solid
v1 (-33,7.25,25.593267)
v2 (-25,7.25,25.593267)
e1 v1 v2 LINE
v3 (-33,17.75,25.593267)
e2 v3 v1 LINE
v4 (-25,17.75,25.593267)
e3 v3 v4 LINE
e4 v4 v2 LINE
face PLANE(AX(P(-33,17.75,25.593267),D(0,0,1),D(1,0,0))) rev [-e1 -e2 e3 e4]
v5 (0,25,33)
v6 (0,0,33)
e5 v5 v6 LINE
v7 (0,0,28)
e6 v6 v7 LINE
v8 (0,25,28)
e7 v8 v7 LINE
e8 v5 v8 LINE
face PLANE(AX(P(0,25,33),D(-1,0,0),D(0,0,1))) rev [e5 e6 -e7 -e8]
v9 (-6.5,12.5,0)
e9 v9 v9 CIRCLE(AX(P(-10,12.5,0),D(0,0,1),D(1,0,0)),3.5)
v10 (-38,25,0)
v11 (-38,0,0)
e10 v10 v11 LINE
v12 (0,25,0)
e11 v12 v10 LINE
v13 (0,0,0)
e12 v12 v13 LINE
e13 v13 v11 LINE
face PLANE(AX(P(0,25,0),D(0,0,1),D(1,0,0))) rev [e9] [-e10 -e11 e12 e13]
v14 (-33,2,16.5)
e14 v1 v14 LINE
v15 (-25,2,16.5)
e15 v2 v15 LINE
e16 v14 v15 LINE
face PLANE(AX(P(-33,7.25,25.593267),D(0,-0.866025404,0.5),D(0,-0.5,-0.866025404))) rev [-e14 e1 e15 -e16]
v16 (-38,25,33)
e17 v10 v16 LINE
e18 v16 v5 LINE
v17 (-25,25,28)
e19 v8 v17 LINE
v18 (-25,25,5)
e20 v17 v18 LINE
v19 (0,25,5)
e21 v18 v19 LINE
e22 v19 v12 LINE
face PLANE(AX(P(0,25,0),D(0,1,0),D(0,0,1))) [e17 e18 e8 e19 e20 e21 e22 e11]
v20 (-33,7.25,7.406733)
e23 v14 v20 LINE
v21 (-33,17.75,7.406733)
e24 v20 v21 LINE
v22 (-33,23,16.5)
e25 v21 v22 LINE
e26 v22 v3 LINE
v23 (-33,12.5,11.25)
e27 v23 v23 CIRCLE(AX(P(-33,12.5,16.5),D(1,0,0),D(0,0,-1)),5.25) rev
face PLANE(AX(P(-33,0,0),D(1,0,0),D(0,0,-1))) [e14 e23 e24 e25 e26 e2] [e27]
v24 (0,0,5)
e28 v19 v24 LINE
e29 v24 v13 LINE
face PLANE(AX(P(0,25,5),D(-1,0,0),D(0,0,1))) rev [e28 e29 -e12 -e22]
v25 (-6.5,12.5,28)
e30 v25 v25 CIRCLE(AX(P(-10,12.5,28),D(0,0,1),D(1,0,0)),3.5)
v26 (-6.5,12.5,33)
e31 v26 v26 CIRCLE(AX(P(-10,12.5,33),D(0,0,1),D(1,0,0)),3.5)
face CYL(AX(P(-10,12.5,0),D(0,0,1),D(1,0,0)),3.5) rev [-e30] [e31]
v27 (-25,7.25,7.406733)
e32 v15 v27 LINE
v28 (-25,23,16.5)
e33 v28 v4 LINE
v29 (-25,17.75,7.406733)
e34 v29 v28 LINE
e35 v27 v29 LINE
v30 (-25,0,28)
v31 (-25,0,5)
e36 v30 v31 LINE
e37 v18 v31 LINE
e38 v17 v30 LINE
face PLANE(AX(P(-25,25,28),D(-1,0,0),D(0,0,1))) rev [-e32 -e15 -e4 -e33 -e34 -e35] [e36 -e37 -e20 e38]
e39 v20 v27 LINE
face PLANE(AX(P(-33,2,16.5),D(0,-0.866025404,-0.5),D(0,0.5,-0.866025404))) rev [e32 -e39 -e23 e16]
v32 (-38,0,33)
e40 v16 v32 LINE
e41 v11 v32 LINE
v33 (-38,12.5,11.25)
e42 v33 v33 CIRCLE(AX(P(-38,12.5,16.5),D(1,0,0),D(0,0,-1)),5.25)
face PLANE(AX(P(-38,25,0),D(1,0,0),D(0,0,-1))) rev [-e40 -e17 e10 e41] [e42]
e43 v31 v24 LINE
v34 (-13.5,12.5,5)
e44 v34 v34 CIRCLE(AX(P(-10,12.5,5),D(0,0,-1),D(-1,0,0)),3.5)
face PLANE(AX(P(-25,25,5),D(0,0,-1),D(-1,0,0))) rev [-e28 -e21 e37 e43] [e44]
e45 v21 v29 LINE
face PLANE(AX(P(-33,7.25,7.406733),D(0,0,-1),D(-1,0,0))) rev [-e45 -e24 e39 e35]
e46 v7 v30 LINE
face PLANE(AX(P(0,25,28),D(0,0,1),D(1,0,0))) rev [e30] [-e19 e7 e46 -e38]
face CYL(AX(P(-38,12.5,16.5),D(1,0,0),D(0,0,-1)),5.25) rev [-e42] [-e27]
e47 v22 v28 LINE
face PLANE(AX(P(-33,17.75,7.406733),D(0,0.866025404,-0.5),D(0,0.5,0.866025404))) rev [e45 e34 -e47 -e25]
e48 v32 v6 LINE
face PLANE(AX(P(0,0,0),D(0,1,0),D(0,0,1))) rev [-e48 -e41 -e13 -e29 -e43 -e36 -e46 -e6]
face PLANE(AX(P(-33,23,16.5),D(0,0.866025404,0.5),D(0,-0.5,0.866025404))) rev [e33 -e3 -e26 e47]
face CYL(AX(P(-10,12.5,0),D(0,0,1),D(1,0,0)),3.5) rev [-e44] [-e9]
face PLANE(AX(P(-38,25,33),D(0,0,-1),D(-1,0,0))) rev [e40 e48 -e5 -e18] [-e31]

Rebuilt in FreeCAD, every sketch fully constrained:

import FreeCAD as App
import Part
import Sketcher

V = App.Vector
Q = App.Units.Quantity

doc = App.newDocument("Part")
params = doc.addObject("Spreadsheet::Sheet", "Params")
for row, (alias, value) in enumerate([
    ("sketch1_width", "38 mm"),
    ("sketch1_width2", "25 mm"),
    ("sketch1_height", "33 mm"),
    ("sketch1_height2", "5 mm"),
    ("pad1_length", "25 mm"),
    ("sketch2_diameter", "7 mm"),
    ("sketch3_diameter", "10.5 mm"),
    ("sketch4_width", "10.5 mm"),
    ("pocket3_length", "8 mm"),
], start=1):
    params.set(f"A{row}", alias)
    params.set(f"B{row}", "=" + value)
    params.setAlias(f"B{row}", alias)

body = doc.addObject("PartDesign::Body", "Body")

# Sketch on XZ plane
sketch1 = body.newObject("Sketcher::SketchObject", "Sketch")
sketch1.AttachmentSupport = (doc.getObject("XZ_Plane"), [""])
sketch1.MapMode = "FlatFace"
sketch1.addGeometry([
    Part.LineSegment(V(0, 0, 0), V(-38, 0, 0)),  # 0
    Part.LineSegment(V(-38, 0, 0), V(-38, 33, 0)),  # 1
    Part.LineSegment(V(-38, 33, 0), V(0, 33, 0)),  # 2
    Part.LineSegment(V(0, 33, 0), V(0, 28, 0)),  # 3
    Part.LineSegment(V(0, 28, 0), V(-25, 28, 0)),  # 4
    Part.LineSegment(V(-25, 28, 0), V(-25, 5, 0)),  # 5
    Part.LineSegment(V(-25, 5, 0), V(0, 5, 0)),  # 6
    Part.LineSegment(V(0, 5, 0), V(0, 0, 0)),  # 7
], False)
sketch1.addConstraint([
    Sketcher.Constraint("Coincident", 0, 2, 1, 1),
    Sketcher.Constraint("Coincident", 1, 2, 2, 1),
    Sketcher.Constraint("Coincident", 2, 2, 3, 1),
    Sketcher.Constraint("Coincident", 3, 2, 4, 1),
    Sketcher.Constraint("Coincident", 4, 2, 5, 1),
    Sketcher.Constraint("Coincident", 5, 2, 6, 1),
    Sketcher.Constraint("Coincident", 6, 2, 7, 1),
    Sketcher.Constraint("Coincident", 7, 2, 0, 1),
    Sketcher.Constraint("Horizontal", 0),
    Sketcher.Constraint("Vertical", 1),
    Sketcher.Constraint("Horizontal", 2),
    Sketcher.Constraint("Vertical", 3),
    Sketcher.Constraint("Horizontal", 4),
    Sketcher.Constraint("Vertical", 5),
    Sketcher.Constraint("Horizontal", 6),
    Sketcher.Constraint("Vertical", 7),
    Sketcher.Constraint("Coincident", 7, 2, -1, 1),
    Sketcher.Constraint("PointOnObject", 2, 2, -2),
    Sketcher.Constraint("Equal", 3, 7),
    Sketcher.Constraint("DistanceX", 0, 2, 0, 1, Q("38 mm")),
    Sketcher.Constraint("DistanceX", 4, 2, 4, 1, Q("25 mm")),
    Sketcher.Constraint("DistanceY", 1, 1, 1, 2, Q("33 mm")),
    Sketcher.Constraint("DistanceY", 3, 2, 3, 1, Q("5 mm")),
])
sketch1.setExpression("Constraints[19]", "Params.sketch1_width")
sketch1.setExpression("Constraints[20]", "Params.sketch1_width2")
sketch1.setExpression("Constraints[21]", "Params.sketch1_height")
sketch1.setExpression("Constraints[22]", "Params.sketch1_height2")
pad1 = body.newObject("PartDesign::Pad", "Pad")
pad1.Profile = sketch1
pad1.setExpression("Length", "Params.pad1_length")
pad1.Reversed = True

# Sketch on XY plane
sketch2 = body.newObject("Sketcher::SketchObject", "Sketch001")
sketch2.AttachmentSupport = (doc.getObject("XY_Plane"), [""])
sketch2.MapMode = "FlatFace"
sketch2.AttachmentOffset = App.Placement(V(0, 0, 33), App.Rotation())
sketch2.addGeometry(Part.Circle(V(-10, 12.5, 0), V(0, 0, 1), 3.5), False)
sketch2.addConstraint([
    Sketcher.Constraint("Diameter", 0, Q("7 mm")),
    Sketcher.Constraint("DistanceX", 0, 3, -1, 1, Q("10 mm")),
    Sketcher.Constraint("DistanceY", -1, 1, 0, 3, Q("12.5 mm")),
])
sketch2.setExpression("Constraints[0]", "Params.sketch2_diameter")
pocket1 = body.newObject("PartDesign::Pocket", "Pocket")
pocket1.Profile = sketch2
pocket1.Type = "ThroughAll"

# Sketch on YZ plane
sketch3 = body.newObject("Sketcher::SketchObject", "Sketch002")
sketch3.AttachmentSupport = (doc.getObject("YZ_Plane"), [""])
sketch3.MapMode = "FlatFace"
sketch3.AttachmentOffset = App.Placement(V(0, 0, -25), App.Rotation())
sketch3.addGeometry(Part.Circle(V(12, 16, 0), V(0, 0, 1), 5), False)
sketch3.addConstraint([
    Sketcher.Constraint("Diameter", 0, Q("10.5 mm")),
    Sketcher.Constraint("DistanceX", -1, 1, 0, 3, Q("12.5 mm")),
    Sketcher.Constraint("DistanceY", -1, 1, 0, 3, Q("16.5 mm")),
])
sketch3.setExpression("Constraints[0]", "Params.sketch3_diameter")
pocket2 = body.newObject("PartDesign::Pocket", "Pocket001")
pocket2.Profile = sketch3
pocket2.Type = "ThroughAll"

# Sketch on YZ plane
sketch4 = body.newObject("Sketcher::SketchObject", "Sketch003")
sketch4.AttachmentSupport = (doc.getObject("YZ_Plane"), [""])
sketch4.MapMode = "FlatFace"
sketch4.AttachmentOffset = App.Placement(V(0, 0, -25), App.Rotation())
sketch4.addGeometry([
    Part.LineSegment(V(18, 7, 0), V(23, 16, 0)),  # 0
    Part.LineSegment(V(23, 16, 0), V(18, 26, 0)),  # 1
    Part.LineSegment(V(18, 26, 0), V(7, 26, 0)),  # 2
    Part.LineSegment(V(7, 26, 0), V(2, 16, 0)),  # 3
    Part.LineSegment(V(2, 16, 0), V(7, 7, 0)),  # 4
    Part.LineSegment(V(7, 7, 0), V(18, 7, 0)),  # 5
], False)
sketch4.addConstraint([
    Sketcher.Constraint("Coincident", 0, 2, 1, 1),
    Sketcher.Constraint("Coincident", 1, 2, 2, 1),
    Sketcher.Constraint("Coincident", 2, 2, 3, 1),
    Sketcher.Constraint("Coincident", 3, 2, 4, 1),
    Sketcher.Constraint("Coincident", 4, 2, 5, 1),
    Sketcher.Constraint("Coincident", 5, 2, 0, 1),
    Sketcher.Constraint("Horizontal", 2),
    Sketcher.Constraint("Horizontal", 5),
    Sketcher.Constraint("Parallel", 0, 3),
    Sketcher.Constraint("Parallel", 1, 4),
    Sketcher.Constraint("Horizontal", 0, 2, 3, 2),
    Sketcher.Constraint("Vertical", 2, 2, 4, 2),
    Sketcher.Constraint("Vertical", 1, 2, 5, 2),
    Sketcher.Constraint("Angle", 0, Q("60 deg")),
    Sketcher.Constraint("DistanceX", 2, 2, 2, 1, Q("10.5 mm")),
    Sketcher.Constraint("DistanceX", -1, 1, 0, 2, Q("23 mm")),
    Sketcher.Constraint("DistanceX", -1, 1, 3, 2, Q("2 mm")),
    Sketcher.Constraint("DistanceY", -1, 1, 0, 2, Q("16.5 mm")),
])
sketch4.setExpression("Constraints[14]", "Params.sketch4_width")
pocket3 = body.newObject("PartDesign::Pocket", "Pocket002")
pocket3.Profile = sketch4
pocket3.setExpression("Length", "Params.pocket3_length")

doc.recompute()
